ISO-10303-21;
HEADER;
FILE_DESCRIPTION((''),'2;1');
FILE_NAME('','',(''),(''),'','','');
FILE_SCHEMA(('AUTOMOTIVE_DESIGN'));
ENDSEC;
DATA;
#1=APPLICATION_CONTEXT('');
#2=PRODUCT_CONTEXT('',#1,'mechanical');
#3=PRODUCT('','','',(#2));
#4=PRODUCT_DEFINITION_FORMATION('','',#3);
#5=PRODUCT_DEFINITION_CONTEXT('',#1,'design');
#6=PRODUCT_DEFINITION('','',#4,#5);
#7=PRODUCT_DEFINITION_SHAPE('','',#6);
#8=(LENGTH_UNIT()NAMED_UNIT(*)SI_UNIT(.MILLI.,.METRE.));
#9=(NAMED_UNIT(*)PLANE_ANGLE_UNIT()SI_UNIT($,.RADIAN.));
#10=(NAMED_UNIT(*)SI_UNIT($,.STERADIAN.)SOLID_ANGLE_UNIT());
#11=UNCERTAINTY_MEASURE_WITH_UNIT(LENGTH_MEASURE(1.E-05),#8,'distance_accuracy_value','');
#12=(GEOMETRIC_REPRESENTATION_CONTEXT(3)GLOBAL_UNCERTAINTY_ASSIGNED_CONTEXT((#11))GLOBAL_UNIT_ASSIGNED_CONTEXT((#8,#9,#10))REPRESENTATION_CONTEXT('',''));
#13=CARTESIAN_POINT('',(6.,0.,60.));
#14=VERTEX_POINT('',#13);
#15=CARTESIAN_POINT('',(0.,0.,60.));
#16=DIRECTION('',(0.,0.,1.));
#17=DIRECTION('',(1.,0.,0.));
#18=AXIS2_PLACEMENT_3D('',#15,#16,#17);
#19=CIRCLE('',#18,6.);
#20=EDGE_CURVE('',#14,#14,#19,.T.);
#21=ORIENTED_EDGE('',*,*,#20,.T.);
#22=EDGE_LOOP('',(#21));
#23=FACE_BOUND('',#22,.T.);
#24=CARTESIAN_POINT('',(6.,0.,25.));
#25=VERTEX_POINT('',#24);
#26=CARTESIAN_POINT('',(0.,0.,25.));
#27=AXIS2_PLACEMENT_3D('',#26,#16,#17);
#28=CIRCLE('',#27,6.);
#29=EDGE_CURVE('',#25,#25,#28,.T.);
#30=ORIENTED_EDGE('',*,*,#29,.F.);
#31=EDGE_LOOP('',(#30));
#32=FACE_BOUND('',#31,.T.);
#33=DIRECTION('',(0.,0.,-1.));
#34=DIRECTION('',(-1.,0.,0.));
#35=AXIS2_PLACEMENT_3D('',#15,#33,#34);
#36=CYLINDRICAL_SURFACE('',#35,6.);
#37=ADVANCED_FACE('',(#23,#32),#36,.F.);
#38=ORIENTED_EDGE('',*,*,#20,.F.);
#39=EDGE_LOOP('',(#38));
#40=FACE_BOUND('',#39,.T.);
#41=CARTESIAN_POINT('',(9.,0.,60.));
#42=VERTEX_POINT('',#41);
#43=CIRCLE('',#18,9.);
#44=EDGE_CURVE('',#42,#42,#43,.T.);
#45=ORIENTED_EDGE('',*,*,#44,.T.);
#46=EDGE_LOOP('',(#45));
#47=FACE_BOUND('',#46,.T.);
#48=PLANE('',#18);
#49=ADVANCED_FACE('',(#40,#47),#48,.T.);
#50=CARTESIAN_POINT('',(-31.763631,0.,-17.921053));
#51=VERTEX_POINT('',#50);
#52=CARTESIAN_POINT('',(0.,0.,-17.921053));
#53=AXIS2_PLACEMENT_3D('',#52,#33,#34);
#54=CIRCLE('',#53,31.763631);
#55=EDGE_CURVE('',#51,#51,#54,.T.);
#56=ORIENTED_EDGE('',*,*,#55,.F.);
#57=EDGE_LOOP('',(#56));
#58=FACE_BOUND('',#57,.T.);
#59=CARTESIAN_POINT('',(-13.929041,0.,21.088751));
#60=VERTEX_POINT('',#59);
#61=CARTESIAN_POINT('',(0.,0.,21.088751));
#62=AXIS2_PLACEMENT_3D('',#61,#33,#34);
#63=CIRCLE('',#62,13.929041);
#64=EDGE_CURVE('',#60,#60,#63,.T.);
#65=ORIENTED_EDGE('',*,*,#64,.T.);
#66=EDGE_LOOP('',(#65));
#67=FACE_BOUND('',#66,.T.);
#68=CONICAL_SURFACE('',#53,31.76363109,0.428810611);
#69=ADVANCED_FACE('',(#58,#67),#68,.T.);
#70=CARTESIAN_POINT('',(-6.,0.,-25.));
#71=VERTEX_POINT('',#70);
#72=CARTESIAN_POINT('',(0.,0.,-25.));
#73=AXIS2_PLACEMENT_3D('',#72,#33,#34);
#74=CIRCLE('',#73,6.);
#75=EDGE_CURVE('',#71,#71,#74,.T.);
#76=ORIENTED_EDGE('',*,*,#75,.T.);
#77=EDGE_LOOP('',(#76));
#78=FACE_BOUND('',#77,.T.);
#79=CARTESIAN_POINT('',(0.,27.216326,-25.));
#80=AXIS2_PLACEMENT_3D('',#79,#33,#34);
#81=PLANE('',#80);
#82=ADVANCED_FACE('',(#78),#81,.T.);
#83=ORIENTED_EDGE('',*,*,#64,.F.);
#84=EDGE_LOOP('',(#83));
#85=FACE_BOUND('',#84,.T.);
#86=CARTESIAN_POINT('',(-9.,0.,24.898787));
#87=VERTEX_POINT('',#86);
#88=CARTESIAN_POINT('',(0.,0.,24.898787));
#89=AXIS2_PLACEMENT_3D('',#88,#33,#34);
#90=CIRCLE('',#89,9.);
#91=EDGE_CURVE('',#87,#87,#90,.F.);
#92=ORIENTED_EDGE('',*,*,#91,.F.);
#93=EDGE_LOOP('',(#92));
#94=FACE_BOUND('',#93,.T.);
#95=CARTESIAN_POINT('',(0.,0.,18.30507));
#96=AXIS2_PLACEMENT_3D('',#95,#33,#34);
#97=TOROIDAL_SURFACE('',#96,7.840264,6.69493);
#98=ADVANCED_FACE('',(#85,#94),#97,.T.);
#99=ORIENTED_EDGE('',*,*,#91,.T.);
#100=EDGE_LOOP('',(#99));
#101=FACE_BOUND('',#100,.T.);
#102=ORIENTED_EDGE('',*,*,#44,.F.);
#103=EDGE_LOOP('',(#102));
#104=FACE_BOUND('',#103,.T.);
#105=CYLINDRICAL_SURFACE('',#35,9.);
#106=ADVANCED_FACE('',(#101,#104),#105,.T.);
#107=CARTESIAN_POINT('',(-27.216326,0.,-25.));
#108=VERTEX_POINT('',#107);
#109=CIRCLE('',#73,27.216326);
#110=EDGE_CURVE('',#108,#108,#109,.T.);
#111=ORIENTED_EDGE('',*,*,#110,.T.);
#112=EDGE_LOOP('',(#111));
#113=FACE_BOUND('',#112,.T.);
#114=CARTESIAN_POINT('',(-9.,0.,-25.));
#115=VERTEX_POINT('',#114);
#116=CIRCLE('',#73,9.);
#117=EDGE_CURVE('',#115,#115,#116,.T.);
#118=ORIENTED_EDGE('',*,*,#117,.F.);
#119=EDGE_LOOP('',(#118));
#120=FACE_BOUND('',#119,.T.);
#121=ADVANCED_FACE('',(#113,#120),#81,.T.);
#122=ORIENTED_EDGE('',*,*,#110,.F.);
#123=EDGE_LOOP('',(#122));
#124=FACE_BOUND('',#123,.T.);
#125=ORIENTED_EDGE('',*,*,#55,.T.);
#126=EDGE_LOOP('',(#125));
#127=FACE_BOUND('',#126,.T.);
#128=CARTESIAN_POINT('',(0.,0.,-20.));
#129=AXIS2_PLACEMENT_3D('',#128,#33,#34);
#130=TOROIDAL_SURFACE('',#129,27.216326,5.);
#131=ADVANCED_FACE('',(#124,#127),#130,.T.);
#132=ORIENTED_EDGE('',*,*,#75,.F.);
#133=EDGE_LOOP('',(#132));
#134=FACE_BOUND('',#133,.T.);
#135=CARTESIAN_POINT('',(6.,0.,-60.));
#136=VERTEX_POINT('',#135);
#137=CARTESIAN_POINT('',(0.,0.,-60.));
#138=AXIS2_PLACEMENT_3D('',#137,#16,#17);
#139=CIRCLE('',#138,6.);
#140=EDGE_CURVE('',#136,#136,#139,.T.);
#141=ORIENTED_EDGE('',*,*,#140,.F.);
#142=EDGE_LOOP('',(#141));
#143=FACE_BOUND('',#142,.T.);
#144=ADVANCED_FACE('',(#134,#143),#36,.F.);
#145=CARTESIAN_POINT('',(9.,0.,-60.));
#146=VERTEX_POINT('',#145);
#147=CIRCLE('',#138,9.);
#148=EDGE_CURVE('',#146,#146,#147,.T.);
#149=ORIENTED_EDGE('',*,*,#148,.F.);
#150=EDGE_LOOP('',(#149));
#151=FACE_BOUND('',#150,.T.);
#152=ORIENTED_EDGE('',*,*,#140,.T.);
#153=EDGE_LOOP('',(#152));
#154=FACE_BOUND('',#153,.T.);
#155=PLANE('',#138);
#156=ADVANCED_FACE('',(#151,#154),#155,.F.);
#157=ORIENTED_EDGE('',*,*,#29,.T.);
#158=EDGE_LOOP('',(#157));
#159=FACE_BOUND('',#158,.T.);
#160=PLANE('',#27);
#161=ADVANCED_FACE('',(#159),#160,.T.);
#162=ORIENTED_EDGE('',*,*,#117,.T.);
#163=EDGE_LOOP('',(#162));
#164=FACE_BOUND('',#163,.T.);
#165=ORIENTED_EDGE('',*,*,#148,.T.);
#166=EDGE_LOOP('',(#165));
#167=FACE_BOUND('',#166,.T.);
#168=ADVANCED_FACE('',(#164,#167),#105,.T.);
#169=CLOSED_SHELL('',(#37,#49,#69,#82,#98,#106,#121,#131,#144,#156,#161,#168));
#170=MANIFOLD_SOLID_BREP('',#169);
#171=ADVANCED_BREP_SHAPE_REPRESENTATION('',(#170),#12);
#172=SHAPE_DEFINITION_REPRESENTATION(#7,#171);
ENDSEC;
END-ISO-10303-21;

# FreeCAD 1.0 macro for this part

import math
import FreeCAD as App
import Part
import Sketcher

V = App.Vector
Q = App.Units.Quantity

doc = App.newDocument("Part")
params = doc.addObject("Spreadsheet::Sheet", "Params")
for row, (alias, value) in enumerate([
    ("sketch1_diameter", "18 mm"),
    ("sketch1_diameter2", "12 mm"),
    ("pad1_length", "120 mm"),
    ("sketch2_radius", "5 mm"),
    ("sketch2_height", "50 mm"),
    ("revolution_angle", "360 deg"),
], start=1):
    params.set(f"A{row}", alias)
    params.set(f"B{row}", "=" + value)
    params.setAlias(f"B{row}", alias)

body = doc.addObject("PartDesign::Body", "Body")

# Sketch on XY plane
sketch1 = doc.addObject("Sketcher::SketchObject", "Sketch")
body.addObject(sketch1)
sketch1.AttachmentSupport = (doc.XY_Plane, [""])
sketch1.MapMode = "FlatFace"
sketch1.addGeometry(Part.Circle(V(0, 0, 0), V(0, 0, 1), 9), False)
sketch1.addGeometry(Part.Circle(V(0, 0, 0), V(0, 0, 1), 6), False)
sketch1.addConstraint(Sketcher.Constraint("Coincident", 0, 3, -1, 1))
sketch1.addConstraint(Sketcher.Constraint("Coincident", 1, 3, -1, 1))
sketch1.addConstraint(Sketcher.Constraint("Diameter", 0, Q("18 mm")))
sketch1.addConstraint(Sketcher.Constraint("Diameter", 1, Q("12 mm")))
sketch1.setExpression("Constraints[2]", "Params.sketch1_diameter")
sketch1.setExpression("Constraints[3]", "Params.sketch1_diameter2")
pad1 = doc.addObject("PartDesign::Pad", "Pad")
body.addObject(pad1)
pad1.Profile = sketch1
pad1.setExpression("Length", "Params.pad1_length")
pad1.Midplane = True

# Sketch on YZ plane
sketch2 = doc.addObject("Sketcher::SketchObject", "Sketch001")
body.addObject(sketch2)
sketch2.AttachmentSupport = (doc.YZ_Plane, [""])
sketch2.MapMode = "FlatFace"
sketch2.addGeometry(Part.LineSegment(V(8, 25, 0), V(0, 25, 0)), False)
sketch2.addGeometry(Part.LineSegment(V(0, 25, 0), V(0, -25, 0)), False)
sketch2.addGeometry(Part.LineSegment(V(0, -25, 0), V(27, -25, 0)), False)
sketch2.addGeometry(Part.ArcOfCircle(Part.Circle(V(27, -20, 0), V(0, 0, 1), 5), math.radians(-90), math.radians(25)), False)
sketch2.addGeometry(Part.LineSegment(V(32, -18, 0), V(14, 21, 0)), False)
sketch2.addGeometry(Part.ArcOfCircle(Part.Circle(V(8, 18, 0), V(0, 0, 1), 7), math.radians(25), math.radians(90)), False)
sketch2.addConstraint(Sketcher.Constraint("Coincident", 0, 2, 1, 1))
sketch2.addConstraint(Sketcher.Constraint("Coincident", 1, 2, 2, 1))
sketch2.addConstraint(Sketcher.Constraint("Tangent", 2, 2, 3, 1))
sketch2.addConstraint(Sketcher.Constraint("Tangent", 3, 2, 4, 1))
sketch2.addConstraint(Sketcher.Constraint("Tangent", 4, 2, 5, 1))
sketch2.addConstraint(Sketcher.Constraint("Tangent", 5, 2, 0, 1))
sketch2.addConstraint(Sketcher.Constraint("Horizontal", 0))
sketch2.addConstraint(Sketcher.Constraint("Vertical", 1))
sketch2.addConstraint(Sketcher.Constraint("Horizontal", 2))
sketch2.addConstraint(Sketcher.Constraint("Symmetric", 0, 2, 1, 2, -1, 1))
sketch2.addConstraint(Sketcher.Constraint("Radius", 3, Q("5 mm")))
sketch2.addConstraint(Sketcher.Constraint("DistanceY", 1, 2, 1, 1, Q("50 mm")))
sketch2.addConstraint(Sketcher.Constraint("Radius", 5, Q("6.69493 mm")))
sketch2.addConstraint(Sketcher.Constraint("DistanceX", 0, 2, 0, 1, Q("7.840264 mm")))
sketch2.addConstraint(Sketcher.Constraint("DistanceX", 2, 1, 2, 2, Q("27.216326 mm")))
sketch2.setExpression("Constraints[10]", "Params.sketch2_radius")
sketch2.setExpression("Constraints[11]", "Params.sketch2_height")
revolution = doc.addObject("PartDesign::Revolution", "Revolution")
body.addObject(revolution)
revolution.Profile = sketch2
revolution.ReferenceAxis = (sketch2, ["V_Axis"])
revolution.setExpression("Angle", "Params.revolution_angle")

doc.recompute()
